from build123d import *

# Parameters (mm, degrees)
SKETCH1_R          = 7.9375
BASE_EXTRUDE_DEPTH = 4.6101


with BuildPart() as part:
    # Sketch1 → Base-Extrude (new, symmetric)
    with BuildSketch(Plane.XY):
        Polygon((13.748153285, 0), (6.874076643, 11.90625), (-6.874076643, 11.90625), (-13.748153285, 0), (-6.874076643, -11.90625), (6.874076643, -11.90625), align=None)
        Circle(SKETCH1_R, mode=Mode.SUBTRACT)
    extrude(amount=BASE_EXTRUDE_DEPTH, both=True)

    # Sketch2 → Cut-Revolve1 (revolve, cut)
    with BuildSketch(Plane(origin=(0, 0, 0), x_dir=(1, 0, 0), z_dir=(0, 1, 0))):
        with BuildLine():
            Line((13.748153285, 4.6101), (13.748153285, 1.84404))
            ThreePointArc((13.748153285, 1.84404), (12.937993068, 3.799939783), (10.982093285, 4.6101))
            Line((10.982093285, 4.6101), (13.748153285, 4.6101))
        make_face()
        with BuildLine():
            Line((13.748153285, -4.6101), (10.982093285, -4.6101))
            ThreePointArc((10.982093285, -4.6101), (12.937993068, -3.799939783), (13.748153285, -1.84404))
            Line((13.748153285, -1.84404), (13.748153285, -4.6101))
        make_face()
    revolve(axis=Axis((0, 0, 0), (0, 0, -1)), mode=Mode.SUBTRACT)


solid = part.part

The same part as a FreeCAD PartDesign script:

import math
import FreeCAD as App
import Part
import Sketcher

V = App.Vector
Q = App.Units.Quantity

doc = App.newDocument("Part")
params = doc.addObject("Spreadsheet::Sheet", "Params")
for row, (alias, value) in enumerate([
    ("sketch1_diameter", "0.625 in"),
    ("pad1_length", "0.363 in"),
    ("groove_angle", "360 deg"),
], start=1):
    params.set(f"A{row}", alias)
    params.set(f"B{row}", "=" + value)
    params.setAlias(f"B{row}", alias)

body = doc.addObject("PartDesign::Body", "Body")

# Sketch on XY plane
sketch1 = body.newObject("Sketcher::SketchObject", "Sketch")
sketch1.AttachmentSupport = (doc.getObject("XY_Plane"), [""])
sketch1.MapMode = "FlatFace"
sketch1.addGeometry([
    Part.LineSegment(V(13.748153, 0, 0), V(6.874077, 11.90625, 0)),  # 0
    Part.LineSegment(V(6.874077, 11.90625, 0), V(-6.874077, 11.90625, 0)),  # 1
    Part.LineSegment(V(-6.874077, 11.90625, 0), V(-13.748153, 0, 0)),  # 2
    Part.LineSegment(V(-13.748153, 0, 0), V(-6.874077, -11.90625, 0)),  # 3
    Part.LineSegment(V(-6.874077, -11.90625, 0), V(6.874077, -11.90625, 0)),  # 4
    Part.LineSegment(V(6.874077, -11.90625, 0), V(13.748153, 0, 0)),  # 5
    Part.Circle(V(0, 0, 0), V(0, 0, 1), 7.9375),  # 6
], False)
sketch1.addConstraint([
    Sketcher.Constraint("Coincident", 0, 2, 1, 1),
    Sketcher.Constraint("Coincident", 1, 2, 2, 1),
    Sketcher.Constraint("Coincident", 2, 2, 3, 1),
    Sketcher.Constraint("Coincident", 3, 2, 4, 1),
    Sketcher.Constraint("Coincident", 4, 2, 5, 1),
    Sketcher.Constraint("Coincident", 5, 2, 0, 1),
    Sketcher.Constraint("Horizontal", 1),
    Sketcher.Constraint("Horizontal", 4),
    Sketcher.Constraint("Coincident", 6, 3, -1, 1),
    Sketcher.Constraint("Symmetric", 0, 2, 3, 2, -1, 1),
    Sketcher.Constraint("Symmetric", 2, 2, 5, 2, -1, 1),
    Sketcher.Constraint("PointOnObject", 2, 2, -1),
    Sketcher.Constraint("Parallel", 2, 5),
    Sketcher.Constraint("Vertical", 1, 2, 3, 2),
    Sketcher.Constraint("Diameter", 6, Q("0.625 in")),
    Sketcher.Constraint("Angle", 0, Q("120 deg")),
    Sketcher.Constraint("DistanceY", -1, 1, 0, 2, Q("0.46875 in")),
    Sketcher.Constraint("DistanceX", 1, 2, 1, 1, Q("13.748153 mm")),
])
sketch1.setExpression("Constraints[14]", "Params.sketch1_diameter")
pad1 = body.newObject("PartDesign::Pad", "Pad")
pad1.Profile = sketch1
pad1.setExpression("Length", "Params.pad1_length")
pad1.Midplane = True

# Sketch on XZ plane
sketch2 = body.newObject("Sketcher::SketchObject", "Sketch001")
sketch2.AttachmentSupport = (doc.getObject("XZ_Plane"), [""])
sketch2.MapMode = "FlatFace"
sketch2.addGeometry([
    Part.LineSegment(V(13.748153, -1.84404, 0), V(13.748153, -4.6101, 0)),  # 0
    Part.LineSegment(V(13.748153, -4.6101, 0), V(10.982093, -4.6101, 0)),  # 1
    Part.ArcOfCircle(Part.Circle(V(10.982093, -1.84404, 0), V(0, 0, 1), 2.76606), math.radians(-90), math.radians(0)),  # 2
    Part.LineSegment(V(10.982093, 4.6101, 0), V(13.748153, 4.6101, 0)),  # 3
    Part.LineSegment(V(13.748153, 4.6101, 0), V(13.748153, 1.84404, 0)),  # 4
    Part.ArcOfCircle(Part.Circle(V(10.982093, 1.84404, 0), V(0, 0, 1), 2.76606), math.radians(0), math.radians(90)),  # 5
], False)
sketch2.addConstraint([
    Sketcher.Constraint("Coincident", 0, 2, 1, 1),
    Sketcher.Constraint("Tangent", 1, 2, 2, 1),
    Sketcher.Constraint("Tangent", 2, 2, 0, 1),
    Sketcher.Constraint("Coincident", 3, 2, 4, 1),
    Sketcher.Constraint("Tangent", 4, 2, 5, 1),
    Sketcher.Constraint("Tangent", 5, 2, 3, 1),
    Sketcher.Constraint("Vertical", 0),
    Sketcher.Constraint("Horizontal", 1),
    Sketcher.Constraint("Horizontal", 3),
    Sketcher.Constraint("Vertical", 4),
    Sketcher.Constraint("Equal", 2, 5),
    Sketcher.Constraint("Symmetric", 2, 3, 5, 3, -1),
    Sketcher.Constraint("Radius", 2, Q("0.1089 in")),
    Sketcher.Constraint("DistanceY", 0, 2, 3, 2, Q("0.363 in")),
    Sketcher.Constraint("DistanceX", -1, 1, 2, 3, Q("10.982093 mm")),
])
groove = body.newObject("PartDesign::Groove", "Groove")
groove.Profile = sketch2
groove.ReferenceAxis = (sketch2, ["V_Axis"])
groove.setExpression("Angle", "Params.groove_angle")

doc.recompute()
